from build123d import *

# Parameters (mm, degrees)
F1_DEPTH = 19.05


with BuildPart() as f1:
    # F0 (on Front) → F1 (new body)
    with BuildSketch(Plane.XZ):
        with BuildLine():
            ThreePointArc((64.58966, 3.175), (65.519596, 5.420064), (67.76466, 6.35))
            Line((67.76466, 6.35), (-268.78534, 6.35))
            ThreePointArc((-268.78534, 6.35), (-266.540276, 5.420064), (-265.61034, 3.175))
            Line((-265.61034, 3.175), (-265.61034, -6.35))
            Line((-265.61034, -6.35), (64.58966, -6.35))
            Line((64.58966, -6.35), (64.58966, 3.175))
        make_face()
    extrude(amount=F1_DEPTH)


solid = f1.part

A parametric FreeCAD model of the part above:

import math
import FreeCAD as App
import Part
import Sketcher
Q = App.Units.Quantity

doc = App.newDocument("Part")
body = doc.addObject("PartDesign::Body", "Body")

# Sketch on XZ plane
sketch1 = body.newObject("Sketcher::SketchObject", "Sketch")
sketch1.AttachmentSupport = (doc.getObject("XZ_Plane"), [""])
sketch1.MapMode = "FlatFace"
sketch1.addGeometry([
    Part.ArcOfCircle(Part.Circle(App.Vector(67.76466, 3.175, 0), App.Vector(0, 0, 1), 3.175), math.radians(90.000002), math.radians(179.999998)),  # 0
    Part.LineSegment(App.Vector(67.76466, 6.35, 0), App.Vector(-268.78534, 6.35, 0)),  # 1
    Part.ArcOfCircle(Part.Circle(App.Vector(-268.78534, 3.175, 0), App.Vector(0, 0, 1), 3.175), math.radians(0.000002), math.radians(89.999998)),  # 2
    Part.LineSegment(App.Vector(-265.61034, 3.175, 0), App.Vector(-265.61034, -6.35, 0)),  # 3
    Part.LineSegment(App.Vector(-265.61034, -6.35, 0), App.Vector(64.58966, -6.35, 0)),  # 4
    Part.LineSegment(App.Vector(64.58966, -6.35, 0), App.Vector(64.58966, 3.175, 0)),  # 5
], False)
sketch1.addConstraint([
    Sketcher.Constraint("Tangent", 0, 1, 1, 1),
    Sketcher.Constraint("Tangent", 1, 2, 2, 2),
    Sketcher.Constraint("Tangent", 2, 1, 3, 1),
    Sketcher.Constraint("Coincident", 3, 2, 4, 1),
    Sketcher.Constraint("Coincident", 4, 2, 5, 1),
    Sketcher.Constraint("Tangent", 5, 2, 0, 2),
    Sketcher.Constraint("Horizontal", 1),
    Sketcher.Constraint("Vertical", 3),
    Sketcher.Constraint("Horizontal", 4),
    Sketcher.Constraint("Vertical", 5),
    Sketcher.Constraint("Equal", 0, 2),
    Sketcher.Constraint("DistanceX", 4, 1, 4, 2, Q("13 in")),
    Sketcher.Constraint("Radius", 0, Q("0.125 in")),
    Sketcher.Constraint("DistanceY", 3, 2, 1, 2, Q("0.5 in")),
    Sketcher.Constraint("DistanceY", -1, 1, 0, 1, Q("0.25 in")),
    Sketcher.Constraint("DistanceX", -1, 1, 0, 3, Q("2.6679 in")),
])
pad1 = body.newObject("PartDesign::Pad", "Pad")
pad1.Profile = sketch1
pad1.Length = Q("0.75 in")

doc.recompute()
